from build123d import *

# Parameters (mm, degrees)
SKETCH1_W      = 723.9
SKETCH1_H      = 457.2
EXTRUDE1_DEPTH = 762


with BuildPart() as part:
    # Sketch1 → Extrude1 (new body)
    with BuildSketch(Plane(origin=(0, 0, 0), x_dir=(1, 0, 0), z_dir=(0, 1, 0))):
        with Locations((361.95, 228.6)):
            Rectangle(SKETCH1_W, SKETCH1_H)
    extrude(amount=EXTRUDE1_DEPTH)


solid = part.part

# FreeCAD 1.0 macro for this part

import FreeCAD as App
import Part
import Sketcher
from FreeCAD import Vector
Q = App.Units.Quantity

doc = App.newDocument("Part")
body = doc.addObject("PartDesign::Body", "Body")

# Sketch on XZ plane
sketch1 = doc.addObject("Sketcher::SketchObject", "Sketch")
body.addObject(sketch1)
sketch1.AttachmentSupport = (doc.XZ_Plane, [""])
sketch1.MapMode = "FlatFace"
sketch1.addGeometry([
    Part.LineSegment(Vector(0, -457, 0), Vector(0, 0, 0)),
    Part.LineSegment(Vector(0, 0, 0), Vector(724, 0, 0)),
    Part.LineSegment(Vector(724, 0, 0), Vector(724, -457, 0)),
    Part.LineSegment(Vector(724, -457, 0), Vector(0, -457, 0)),
], False)
sketch1.addConstraint([
    Sketcher.Constraint("Coincident", 0, 2, 1, 1),
    Sketcher.Constraint("Coincident", 1, 2, 2, 1),
    Sketcher.Constraint("Coincident", 2, 2, 3, 1),
    Sketcher.Constraint("Coincident", 3, 2, 0, 1),
    Sketcher.Constraint("Vertical", 0),
    Sketcher.Constraint("Horizontal", 1),
    Sketcher.Constraint("Vertical", 2),
    Sketcher.Constraint("Horizontal", 3),
    Sketcher.Constraint("Coincident", 0, 2, -1, 1),
    Sketcher.Constraint("DistanceY", 0, 1, 0, 2, Q("18 in")),
    Sketcher.Constraint("DistanceX", 1, 1, 1, 2, Q("28.5 in")),
])
pad1 = doc.addObject("PartDesign::Pad", "Pad")
body.addObject(pad1)
pad1.Profile = sketch1
pad1.Length = Q("30 in")
pad1.Reversed = True

doc.recompute()
